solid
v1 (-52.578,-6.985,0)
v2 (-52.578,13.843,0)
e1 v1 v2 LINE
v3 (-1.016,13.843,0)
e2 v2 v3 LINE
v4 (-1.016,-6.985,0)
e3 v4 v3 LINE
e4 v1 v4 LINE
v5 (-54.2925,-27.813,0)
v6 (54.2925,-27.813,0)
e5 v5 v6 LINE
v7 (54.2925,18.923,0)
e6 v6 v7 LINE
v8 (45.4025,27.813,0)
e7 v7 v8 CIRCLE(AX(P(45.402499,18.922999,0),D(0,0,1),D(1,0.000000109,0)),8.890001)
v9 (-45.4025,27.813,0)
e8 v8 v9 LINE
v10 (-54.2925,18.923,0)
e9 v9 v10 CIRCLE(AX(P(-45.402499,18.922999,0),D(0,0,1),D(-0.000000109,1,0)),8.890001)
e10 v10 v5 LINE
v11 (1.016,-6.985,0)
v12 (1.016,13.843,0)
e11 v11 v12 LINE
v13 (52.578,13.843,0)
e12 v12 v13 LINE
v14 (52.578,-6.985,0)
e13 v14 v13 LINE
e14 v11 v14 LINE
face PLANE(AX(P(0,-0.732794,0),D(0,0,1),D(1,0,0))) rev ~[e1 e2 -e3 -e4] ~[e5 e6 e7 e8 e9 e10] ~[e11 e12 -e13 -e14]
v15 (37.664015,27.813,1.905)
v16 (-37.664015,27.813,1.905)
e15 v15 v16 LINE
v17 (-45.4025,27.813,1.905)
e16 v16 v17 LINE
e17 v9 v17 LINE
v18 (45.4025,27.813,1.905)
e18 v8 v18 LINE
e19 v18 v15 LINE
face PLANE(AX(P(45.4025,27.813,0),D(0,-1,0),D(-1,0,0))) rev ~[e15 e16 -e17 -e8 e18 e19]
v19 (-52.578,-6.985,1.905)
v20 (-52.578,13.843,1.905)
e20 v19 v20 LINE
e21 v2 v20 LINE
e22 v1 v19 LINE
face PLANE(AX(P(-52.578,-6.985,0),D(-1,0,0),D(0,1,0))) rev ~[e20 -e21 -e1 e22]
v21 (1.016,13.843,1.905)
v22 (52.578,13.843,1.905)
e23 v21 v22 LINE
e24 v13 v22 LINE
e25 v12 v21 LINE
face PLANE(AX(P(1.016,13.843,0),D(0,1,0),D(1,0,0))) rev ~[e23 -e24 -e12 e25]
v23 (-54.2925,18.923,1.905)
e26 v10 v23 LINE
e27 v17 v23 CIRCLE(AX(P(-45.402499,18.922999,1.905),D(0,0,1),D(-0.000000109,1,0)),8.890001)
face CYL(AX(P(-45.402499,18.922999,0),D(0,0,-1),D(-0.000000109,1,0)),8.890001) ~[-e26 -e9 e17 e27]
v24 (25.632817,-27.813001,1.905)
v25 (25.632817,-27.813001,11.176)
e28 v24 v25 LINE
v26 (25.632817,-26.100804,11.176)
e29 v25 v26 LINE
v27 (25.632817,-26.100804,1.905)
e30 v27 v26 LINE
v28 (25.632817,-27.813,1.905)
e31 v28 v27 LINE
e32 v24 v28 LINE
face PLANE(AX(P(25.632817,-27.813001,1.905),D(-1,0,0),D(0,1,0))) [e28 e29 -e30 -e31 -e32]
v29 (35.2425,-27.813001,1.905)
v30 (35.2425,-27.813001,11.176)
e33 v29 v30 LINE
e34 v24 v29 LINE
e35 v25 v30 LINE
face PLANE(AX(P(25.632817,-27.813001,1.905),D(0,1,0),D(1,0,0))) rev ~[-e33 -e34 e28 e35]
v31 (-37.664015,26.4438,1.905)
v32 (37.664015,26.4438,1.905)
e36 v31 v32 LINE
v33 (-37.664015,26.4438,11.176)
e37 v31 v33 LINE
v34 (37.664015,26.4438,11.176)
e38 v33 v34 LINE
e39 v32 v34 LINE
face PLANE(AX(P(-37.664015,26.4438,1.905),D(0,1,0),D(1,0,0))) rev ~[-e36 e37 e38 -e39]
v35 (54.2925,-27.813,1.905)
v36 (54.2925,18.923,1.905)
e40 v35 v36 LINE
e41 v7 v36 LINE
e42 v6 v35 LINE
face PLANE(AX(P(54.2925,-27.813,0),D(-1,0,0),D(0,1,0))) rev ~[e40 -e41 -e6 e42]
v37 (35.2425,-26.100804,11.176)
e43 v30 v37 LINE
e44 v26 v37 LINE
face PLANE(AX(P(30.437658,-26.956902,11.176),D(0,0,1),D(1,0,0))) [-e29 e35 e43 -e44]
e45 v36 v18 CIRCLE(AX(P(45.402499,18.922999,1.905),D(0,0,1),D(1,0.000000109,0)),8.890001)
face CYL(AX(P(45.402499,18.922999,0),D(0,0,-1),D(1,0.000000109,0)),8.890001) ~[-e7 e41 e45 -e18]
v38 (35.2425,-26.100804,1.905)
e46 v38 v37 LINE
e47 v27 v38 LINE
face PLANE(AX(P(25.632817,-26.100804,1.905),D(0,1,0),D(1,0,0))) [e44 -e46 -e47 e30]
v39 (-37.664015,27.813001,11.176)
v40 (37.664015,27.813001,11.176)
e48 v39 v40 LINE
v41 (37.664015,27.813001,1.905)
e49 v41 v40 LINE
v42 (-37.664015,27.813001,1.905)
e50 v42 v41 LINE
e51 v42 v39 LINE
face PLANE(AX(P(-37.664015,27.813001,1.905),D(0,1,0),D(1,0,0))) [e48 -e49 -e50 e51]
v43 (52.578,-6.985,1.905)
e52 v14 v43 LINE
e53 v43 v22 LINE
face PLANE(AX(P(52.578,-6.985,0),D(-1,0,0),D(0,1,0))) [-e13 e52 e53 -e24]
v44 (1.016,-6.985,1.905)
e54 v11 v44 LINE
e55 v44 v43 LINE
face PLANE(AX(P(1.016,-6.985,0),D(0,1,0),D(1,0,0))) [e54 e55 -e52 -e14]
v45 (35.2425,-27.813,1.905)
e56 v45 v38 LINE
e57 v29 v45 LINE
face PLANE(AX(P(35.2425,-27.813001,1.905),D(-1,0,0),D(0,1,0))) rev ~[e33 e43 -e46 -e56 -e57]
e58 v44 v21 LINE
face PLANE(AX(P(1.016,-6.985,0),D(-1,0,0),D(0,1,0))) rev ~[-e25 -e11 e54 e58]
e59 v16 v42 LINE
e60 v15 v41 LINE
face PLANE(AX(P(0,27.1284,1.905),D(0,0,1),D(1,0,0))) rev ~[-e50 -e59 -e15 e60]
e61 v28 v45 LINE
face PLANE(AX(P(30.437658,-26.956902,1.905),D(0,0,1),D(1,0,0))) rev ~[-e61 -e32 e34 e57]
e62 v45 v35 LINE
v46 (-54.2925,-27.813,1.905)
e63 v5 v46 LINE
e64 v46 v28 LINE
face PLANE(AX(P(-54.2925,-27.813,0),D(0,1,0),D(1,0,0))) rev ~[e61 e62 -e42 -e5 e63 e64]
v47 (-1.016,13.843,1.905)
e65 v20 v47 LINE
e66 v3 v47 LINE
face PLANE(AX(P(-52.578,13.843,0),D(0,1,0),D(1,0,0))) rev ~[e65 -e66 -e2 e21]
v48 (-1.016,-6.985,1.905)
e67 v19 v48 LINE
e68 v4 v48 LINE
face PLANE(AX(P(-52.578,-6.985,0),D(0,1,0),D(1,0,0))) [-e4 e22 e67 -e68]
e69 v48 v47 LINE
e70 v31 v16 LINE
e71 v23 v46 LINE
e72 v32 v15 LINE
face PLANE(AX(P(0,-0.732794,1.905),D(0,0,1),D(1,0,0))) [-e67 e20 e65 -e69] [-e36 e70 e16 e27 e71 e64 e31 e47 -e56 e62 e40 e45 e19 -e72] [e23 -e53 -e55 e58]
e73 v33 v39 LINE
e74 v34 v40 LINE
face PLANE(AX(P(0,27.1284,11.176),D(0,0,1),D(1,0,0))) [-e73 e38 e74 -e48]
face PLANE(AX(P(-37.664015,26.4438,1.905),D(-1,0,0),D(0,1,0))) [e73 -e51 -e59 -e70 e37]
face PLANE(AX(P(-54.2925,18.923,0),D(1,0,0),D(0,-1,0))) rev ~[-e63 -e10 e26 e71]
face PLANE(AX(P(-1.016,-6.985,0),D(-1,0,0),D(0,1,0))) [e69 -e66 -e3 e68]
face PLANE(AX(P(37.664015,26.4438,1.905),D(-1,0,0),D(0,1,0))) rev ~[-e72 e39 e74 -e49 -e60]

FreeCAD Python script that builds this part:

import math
import FreeCAD as App
import Part
import Sketcher

V = App.Vector
Q = App.Units.Quantity


def add_polygon(sketch, points):
    """Adds a closed chain of lines whose ends are joined by coincident constraints."""
    first, n = sketch.GeometryCount, len(points)
    for a, b in zip(points, points[1:] + points[:1]):
        sketch.addGeometry(Part.LineSegment(App.Vector(*a, 0), App.Vector(*b, 0)), False)
    for i in range(n):
        sketch.addConstraint(Sketcher.Constraint("Coincident", first + i, 2, first + (i + 1) % n, 1))

doc = App.newDocument("Part")
body = doc.addObject("PartDesign::Body", "Body")

# Sketch on XY plane
sketch1 = body.newObject("Sketcher::SketchObject", "Sketch")
sketch1.AttachmentSupport = (doc.getObject("XY_Plane"), [""])
sketch1.MapMode = "FlatFace"
sketch1.addGeometry(Part.ArcOfCircle(Part.Circle(V(45.402499, 18.922999, 0), V(0, 0, 1), 8.890001), math.radians(0.000006), math.radians(89.999994)), False)  # 0
sketch1.addGeometry(Part.LineSegment(V(45.4025, 27.813, 0), V(-45.4025, 27.813, 0)), False)  # 1
sketch1.addGeometry(Part.ArcOfCircle(Part.Circle(V(-45.402499, 18.922999, 0), V(0, 0, 1), 8.890001), math.radians(90.000006), math.radians(179.999994)), False)  # 2
sketch1.addGeometry(Part.LineSegment(V(-54.2925, 18.923, 0), V(-54.2925, -27.813, 0)), False)  # 3
sketch1.addGeometry(Part.LineSegment(V(-54.2925, -27.813, 0), V(54.2925, -27.813, 0)), False)  # 4
sketch1.addGeometry(Part.LineSegment(V(54.2925, -27.813, 0), V(54.2925, 18.923, 0)), False)  # 5
add_polygon(sketch1, [(-1.016, -6.985), (-52.578, -6.985), (-52.578, 13.843), (-1.016, 13.843)])  # lines 6-9
add_polygon(sketch1, [(52.578, -6.985), (1.016, -6.985), (1.016, 13.843), (52.578, 13.843)])  # lines 10-13
sketch1.addConstraint(Sketcher.Constraint("Tangent", 0, 2, 1, 1))
sketch1.addConstraint(Sketcher.Constraint("Tangent", 1, 2, 2, 1))
sketch1.addConstraint(Sketcher.Constraint("Tangent", 2, 2, 3, 1))
sketch1.addConstraint(Sketcher.Constraint("Coincident", 3, 2, 4, 1))
sketch1.addConstraint(Sketcher.Constraint("Coincident", 4, 2, 5, 1))
sketch1.addConstraint(Sketcher.Constraint("Tangent", 5, 2, 0, 1))
sketch1.addConstraint(Sketcher.Constraint("Horizontal", 1))
sketch1.addConstraint(Sketcher.Constraint("Vertical", 3))
sketch1.addConstraint(Sketcher.Constraint("Horizontal", 4))
sketch1.addConstraint(Sketcher.Constraint("Vertical", 5))
sketch1.addConstraint(Sketcher.Constraint("Horizontal", 6))
sketch1.addConstraint(Sketcher.Constraint("Vertical", 7))
sketch1.addConstraint(Sketcher.Constraint("Horizontal", 8))
sketch1.addConstraint(Sketcher.Constraint("Vertical", 9))
sketch1.addConstraint(Sketcher.Constraint("Horizontal", 10))
sketch1.addConstraint(Sketcher.Constraint("Vertical", 11))
sketch1.addConstraint(Sketcher.Constraint("Horizontal", 12))
sketch1.addConstraint(Sketcher.Constraint("Vertical", 13))
sketch1.addConstraint(Sketcher.Constraint("Equal", 0, 2))
sketch1.addConstraint(Sketcher.Constraint("Symmetric", 9, 2, 10, 2, -2))
sketch1.addConstraint(Sketcher.Constraint("Symmetric", 7, 2, 12, 2, -2))
sketch1.addConstraint(Sketcher.Constraint("Radius", 0, Q("0.35 in")))
sketch1.addConstraint(Sketcher.Constraint("DistanceX", 6, 2, 6, 1, Q("2.03 in")))
sketch1.addConstraint(Sketcher.Constraint("DistanceY", 3, 2, 3, 1, Q("1.84 in")))
sketch1.addConstraint(Sketcher.Constraint("DistanceY", 7, 1, 7, 2, Q("0.82 in")))
sketch1.addConstraint(Sketcher.Constraint("DistanceY", 7, 2, 2, 2, Q("0.2 in")))
sketch1.addConstraint(Sketcher.Constraint("DistanceX", 1, 2, 1, 1, Q("3.575 in")))
sketch1.addConstraint(Sketcher.Constraint("DistanceX", 6, 2, -1, 1, Q("2.07 in")))
sketch1.addConstraint(Sketcher.Constraint("DistanceY", -1, 1, 0, 3, Q("0.745 in")))
sketch1.addConstraint(Sketcher.Constraint("DistanceX", -1, 1, 0, 3, Q("1.7875 in")))
pad1 = body.newObject("PartDesign::Pad", "Pad")
pad1.Profile = sketch1
pad1.Length = Q("0.075 in")

# Sketch on XY plane
sketch2 = body.newObject("Sketcher::SketchObject", "Sketch001")
sketch2.AttachmentSupport = (doc.getObject("XY_Plane"), [""])
sketch2.MapMode = "FlatFace"
sketch2.AttachmentOffset = App.Placement(V(0, 0, 0.075 * 25.4), App.Rotation())
add_polygon(sketch2, [(-37.664015, 27.813001), (-37.664015, 26.4438), (37.664015, 26.4438), (37.664015, 27.813001)])  # lines 0-3
add_polygon(sketch2, [(25.632817, -26.100804), (25.632817, -27.813001), (35.2425, -27.813001), (35.2425, -26.100804)])  # lines 4-7
sketch2.addConstraint(Sketcher.Constraint("Vertical", 0))
sketch2.addConstraint(Sketcher.Constraint("Horizontal", 1))
sketch2.addConstraint(Sketcher.Constraint("Vertical", 2))
sketch2.addConstraint(Sketcher.Constraint("Horizontal", 3))
sketch2.addConstraint(Sketcher.Constraint("Vertical", 4))
sketch2.addConstraint(Sketcher.Constraint("Horizontal", 5))
sketch2.addConstraint(Sketcher.Constraint("Vertical", 6))
sketch2.addConstraint(Sketcher.Constraint("Horizontal", 7))
sketch2.addConstraint(Sketcher.Constraint("DistanceY", 4, 2, 2, 2, Q("2.19 in")))
sketch2.addConstraint(Sketcher.Constraint("DistanceY", -1, 1, 2, 2, Q("1.095 in")))
sketch2.addConstraint(Sketcher.Constraint("DistanceY", 0, 2, 0, 1, 1.369201))
sketch2.addConstraint(Sketcher.Constraint("DistanceX", -1, 1, 5, 2, Q("1.3875 in")))
sketch2.addConstraint(Sketcher.Constraint("DistanceX", 1, 1, 1, 2, 75.32803))
sketch2.addConstraint(Sketcher.Constraint("DistanceX", 4, 2, 1, 2, 12.031198))
sketch2.addConstraint(Sketcher.Constraint("DistanceX", 5, 1, 5, 2, 9.609683))
sketch2.addConstraint(Sketcher.Constraint("DistanceY", 4, 2, 4, 1, 1.712197))
pad2 = body.newObject("PartDesign::Pad", "Pad001")
pad2.Profile = sketch2
pad2.Length = Q("0.365 in")

doc.recompute()
